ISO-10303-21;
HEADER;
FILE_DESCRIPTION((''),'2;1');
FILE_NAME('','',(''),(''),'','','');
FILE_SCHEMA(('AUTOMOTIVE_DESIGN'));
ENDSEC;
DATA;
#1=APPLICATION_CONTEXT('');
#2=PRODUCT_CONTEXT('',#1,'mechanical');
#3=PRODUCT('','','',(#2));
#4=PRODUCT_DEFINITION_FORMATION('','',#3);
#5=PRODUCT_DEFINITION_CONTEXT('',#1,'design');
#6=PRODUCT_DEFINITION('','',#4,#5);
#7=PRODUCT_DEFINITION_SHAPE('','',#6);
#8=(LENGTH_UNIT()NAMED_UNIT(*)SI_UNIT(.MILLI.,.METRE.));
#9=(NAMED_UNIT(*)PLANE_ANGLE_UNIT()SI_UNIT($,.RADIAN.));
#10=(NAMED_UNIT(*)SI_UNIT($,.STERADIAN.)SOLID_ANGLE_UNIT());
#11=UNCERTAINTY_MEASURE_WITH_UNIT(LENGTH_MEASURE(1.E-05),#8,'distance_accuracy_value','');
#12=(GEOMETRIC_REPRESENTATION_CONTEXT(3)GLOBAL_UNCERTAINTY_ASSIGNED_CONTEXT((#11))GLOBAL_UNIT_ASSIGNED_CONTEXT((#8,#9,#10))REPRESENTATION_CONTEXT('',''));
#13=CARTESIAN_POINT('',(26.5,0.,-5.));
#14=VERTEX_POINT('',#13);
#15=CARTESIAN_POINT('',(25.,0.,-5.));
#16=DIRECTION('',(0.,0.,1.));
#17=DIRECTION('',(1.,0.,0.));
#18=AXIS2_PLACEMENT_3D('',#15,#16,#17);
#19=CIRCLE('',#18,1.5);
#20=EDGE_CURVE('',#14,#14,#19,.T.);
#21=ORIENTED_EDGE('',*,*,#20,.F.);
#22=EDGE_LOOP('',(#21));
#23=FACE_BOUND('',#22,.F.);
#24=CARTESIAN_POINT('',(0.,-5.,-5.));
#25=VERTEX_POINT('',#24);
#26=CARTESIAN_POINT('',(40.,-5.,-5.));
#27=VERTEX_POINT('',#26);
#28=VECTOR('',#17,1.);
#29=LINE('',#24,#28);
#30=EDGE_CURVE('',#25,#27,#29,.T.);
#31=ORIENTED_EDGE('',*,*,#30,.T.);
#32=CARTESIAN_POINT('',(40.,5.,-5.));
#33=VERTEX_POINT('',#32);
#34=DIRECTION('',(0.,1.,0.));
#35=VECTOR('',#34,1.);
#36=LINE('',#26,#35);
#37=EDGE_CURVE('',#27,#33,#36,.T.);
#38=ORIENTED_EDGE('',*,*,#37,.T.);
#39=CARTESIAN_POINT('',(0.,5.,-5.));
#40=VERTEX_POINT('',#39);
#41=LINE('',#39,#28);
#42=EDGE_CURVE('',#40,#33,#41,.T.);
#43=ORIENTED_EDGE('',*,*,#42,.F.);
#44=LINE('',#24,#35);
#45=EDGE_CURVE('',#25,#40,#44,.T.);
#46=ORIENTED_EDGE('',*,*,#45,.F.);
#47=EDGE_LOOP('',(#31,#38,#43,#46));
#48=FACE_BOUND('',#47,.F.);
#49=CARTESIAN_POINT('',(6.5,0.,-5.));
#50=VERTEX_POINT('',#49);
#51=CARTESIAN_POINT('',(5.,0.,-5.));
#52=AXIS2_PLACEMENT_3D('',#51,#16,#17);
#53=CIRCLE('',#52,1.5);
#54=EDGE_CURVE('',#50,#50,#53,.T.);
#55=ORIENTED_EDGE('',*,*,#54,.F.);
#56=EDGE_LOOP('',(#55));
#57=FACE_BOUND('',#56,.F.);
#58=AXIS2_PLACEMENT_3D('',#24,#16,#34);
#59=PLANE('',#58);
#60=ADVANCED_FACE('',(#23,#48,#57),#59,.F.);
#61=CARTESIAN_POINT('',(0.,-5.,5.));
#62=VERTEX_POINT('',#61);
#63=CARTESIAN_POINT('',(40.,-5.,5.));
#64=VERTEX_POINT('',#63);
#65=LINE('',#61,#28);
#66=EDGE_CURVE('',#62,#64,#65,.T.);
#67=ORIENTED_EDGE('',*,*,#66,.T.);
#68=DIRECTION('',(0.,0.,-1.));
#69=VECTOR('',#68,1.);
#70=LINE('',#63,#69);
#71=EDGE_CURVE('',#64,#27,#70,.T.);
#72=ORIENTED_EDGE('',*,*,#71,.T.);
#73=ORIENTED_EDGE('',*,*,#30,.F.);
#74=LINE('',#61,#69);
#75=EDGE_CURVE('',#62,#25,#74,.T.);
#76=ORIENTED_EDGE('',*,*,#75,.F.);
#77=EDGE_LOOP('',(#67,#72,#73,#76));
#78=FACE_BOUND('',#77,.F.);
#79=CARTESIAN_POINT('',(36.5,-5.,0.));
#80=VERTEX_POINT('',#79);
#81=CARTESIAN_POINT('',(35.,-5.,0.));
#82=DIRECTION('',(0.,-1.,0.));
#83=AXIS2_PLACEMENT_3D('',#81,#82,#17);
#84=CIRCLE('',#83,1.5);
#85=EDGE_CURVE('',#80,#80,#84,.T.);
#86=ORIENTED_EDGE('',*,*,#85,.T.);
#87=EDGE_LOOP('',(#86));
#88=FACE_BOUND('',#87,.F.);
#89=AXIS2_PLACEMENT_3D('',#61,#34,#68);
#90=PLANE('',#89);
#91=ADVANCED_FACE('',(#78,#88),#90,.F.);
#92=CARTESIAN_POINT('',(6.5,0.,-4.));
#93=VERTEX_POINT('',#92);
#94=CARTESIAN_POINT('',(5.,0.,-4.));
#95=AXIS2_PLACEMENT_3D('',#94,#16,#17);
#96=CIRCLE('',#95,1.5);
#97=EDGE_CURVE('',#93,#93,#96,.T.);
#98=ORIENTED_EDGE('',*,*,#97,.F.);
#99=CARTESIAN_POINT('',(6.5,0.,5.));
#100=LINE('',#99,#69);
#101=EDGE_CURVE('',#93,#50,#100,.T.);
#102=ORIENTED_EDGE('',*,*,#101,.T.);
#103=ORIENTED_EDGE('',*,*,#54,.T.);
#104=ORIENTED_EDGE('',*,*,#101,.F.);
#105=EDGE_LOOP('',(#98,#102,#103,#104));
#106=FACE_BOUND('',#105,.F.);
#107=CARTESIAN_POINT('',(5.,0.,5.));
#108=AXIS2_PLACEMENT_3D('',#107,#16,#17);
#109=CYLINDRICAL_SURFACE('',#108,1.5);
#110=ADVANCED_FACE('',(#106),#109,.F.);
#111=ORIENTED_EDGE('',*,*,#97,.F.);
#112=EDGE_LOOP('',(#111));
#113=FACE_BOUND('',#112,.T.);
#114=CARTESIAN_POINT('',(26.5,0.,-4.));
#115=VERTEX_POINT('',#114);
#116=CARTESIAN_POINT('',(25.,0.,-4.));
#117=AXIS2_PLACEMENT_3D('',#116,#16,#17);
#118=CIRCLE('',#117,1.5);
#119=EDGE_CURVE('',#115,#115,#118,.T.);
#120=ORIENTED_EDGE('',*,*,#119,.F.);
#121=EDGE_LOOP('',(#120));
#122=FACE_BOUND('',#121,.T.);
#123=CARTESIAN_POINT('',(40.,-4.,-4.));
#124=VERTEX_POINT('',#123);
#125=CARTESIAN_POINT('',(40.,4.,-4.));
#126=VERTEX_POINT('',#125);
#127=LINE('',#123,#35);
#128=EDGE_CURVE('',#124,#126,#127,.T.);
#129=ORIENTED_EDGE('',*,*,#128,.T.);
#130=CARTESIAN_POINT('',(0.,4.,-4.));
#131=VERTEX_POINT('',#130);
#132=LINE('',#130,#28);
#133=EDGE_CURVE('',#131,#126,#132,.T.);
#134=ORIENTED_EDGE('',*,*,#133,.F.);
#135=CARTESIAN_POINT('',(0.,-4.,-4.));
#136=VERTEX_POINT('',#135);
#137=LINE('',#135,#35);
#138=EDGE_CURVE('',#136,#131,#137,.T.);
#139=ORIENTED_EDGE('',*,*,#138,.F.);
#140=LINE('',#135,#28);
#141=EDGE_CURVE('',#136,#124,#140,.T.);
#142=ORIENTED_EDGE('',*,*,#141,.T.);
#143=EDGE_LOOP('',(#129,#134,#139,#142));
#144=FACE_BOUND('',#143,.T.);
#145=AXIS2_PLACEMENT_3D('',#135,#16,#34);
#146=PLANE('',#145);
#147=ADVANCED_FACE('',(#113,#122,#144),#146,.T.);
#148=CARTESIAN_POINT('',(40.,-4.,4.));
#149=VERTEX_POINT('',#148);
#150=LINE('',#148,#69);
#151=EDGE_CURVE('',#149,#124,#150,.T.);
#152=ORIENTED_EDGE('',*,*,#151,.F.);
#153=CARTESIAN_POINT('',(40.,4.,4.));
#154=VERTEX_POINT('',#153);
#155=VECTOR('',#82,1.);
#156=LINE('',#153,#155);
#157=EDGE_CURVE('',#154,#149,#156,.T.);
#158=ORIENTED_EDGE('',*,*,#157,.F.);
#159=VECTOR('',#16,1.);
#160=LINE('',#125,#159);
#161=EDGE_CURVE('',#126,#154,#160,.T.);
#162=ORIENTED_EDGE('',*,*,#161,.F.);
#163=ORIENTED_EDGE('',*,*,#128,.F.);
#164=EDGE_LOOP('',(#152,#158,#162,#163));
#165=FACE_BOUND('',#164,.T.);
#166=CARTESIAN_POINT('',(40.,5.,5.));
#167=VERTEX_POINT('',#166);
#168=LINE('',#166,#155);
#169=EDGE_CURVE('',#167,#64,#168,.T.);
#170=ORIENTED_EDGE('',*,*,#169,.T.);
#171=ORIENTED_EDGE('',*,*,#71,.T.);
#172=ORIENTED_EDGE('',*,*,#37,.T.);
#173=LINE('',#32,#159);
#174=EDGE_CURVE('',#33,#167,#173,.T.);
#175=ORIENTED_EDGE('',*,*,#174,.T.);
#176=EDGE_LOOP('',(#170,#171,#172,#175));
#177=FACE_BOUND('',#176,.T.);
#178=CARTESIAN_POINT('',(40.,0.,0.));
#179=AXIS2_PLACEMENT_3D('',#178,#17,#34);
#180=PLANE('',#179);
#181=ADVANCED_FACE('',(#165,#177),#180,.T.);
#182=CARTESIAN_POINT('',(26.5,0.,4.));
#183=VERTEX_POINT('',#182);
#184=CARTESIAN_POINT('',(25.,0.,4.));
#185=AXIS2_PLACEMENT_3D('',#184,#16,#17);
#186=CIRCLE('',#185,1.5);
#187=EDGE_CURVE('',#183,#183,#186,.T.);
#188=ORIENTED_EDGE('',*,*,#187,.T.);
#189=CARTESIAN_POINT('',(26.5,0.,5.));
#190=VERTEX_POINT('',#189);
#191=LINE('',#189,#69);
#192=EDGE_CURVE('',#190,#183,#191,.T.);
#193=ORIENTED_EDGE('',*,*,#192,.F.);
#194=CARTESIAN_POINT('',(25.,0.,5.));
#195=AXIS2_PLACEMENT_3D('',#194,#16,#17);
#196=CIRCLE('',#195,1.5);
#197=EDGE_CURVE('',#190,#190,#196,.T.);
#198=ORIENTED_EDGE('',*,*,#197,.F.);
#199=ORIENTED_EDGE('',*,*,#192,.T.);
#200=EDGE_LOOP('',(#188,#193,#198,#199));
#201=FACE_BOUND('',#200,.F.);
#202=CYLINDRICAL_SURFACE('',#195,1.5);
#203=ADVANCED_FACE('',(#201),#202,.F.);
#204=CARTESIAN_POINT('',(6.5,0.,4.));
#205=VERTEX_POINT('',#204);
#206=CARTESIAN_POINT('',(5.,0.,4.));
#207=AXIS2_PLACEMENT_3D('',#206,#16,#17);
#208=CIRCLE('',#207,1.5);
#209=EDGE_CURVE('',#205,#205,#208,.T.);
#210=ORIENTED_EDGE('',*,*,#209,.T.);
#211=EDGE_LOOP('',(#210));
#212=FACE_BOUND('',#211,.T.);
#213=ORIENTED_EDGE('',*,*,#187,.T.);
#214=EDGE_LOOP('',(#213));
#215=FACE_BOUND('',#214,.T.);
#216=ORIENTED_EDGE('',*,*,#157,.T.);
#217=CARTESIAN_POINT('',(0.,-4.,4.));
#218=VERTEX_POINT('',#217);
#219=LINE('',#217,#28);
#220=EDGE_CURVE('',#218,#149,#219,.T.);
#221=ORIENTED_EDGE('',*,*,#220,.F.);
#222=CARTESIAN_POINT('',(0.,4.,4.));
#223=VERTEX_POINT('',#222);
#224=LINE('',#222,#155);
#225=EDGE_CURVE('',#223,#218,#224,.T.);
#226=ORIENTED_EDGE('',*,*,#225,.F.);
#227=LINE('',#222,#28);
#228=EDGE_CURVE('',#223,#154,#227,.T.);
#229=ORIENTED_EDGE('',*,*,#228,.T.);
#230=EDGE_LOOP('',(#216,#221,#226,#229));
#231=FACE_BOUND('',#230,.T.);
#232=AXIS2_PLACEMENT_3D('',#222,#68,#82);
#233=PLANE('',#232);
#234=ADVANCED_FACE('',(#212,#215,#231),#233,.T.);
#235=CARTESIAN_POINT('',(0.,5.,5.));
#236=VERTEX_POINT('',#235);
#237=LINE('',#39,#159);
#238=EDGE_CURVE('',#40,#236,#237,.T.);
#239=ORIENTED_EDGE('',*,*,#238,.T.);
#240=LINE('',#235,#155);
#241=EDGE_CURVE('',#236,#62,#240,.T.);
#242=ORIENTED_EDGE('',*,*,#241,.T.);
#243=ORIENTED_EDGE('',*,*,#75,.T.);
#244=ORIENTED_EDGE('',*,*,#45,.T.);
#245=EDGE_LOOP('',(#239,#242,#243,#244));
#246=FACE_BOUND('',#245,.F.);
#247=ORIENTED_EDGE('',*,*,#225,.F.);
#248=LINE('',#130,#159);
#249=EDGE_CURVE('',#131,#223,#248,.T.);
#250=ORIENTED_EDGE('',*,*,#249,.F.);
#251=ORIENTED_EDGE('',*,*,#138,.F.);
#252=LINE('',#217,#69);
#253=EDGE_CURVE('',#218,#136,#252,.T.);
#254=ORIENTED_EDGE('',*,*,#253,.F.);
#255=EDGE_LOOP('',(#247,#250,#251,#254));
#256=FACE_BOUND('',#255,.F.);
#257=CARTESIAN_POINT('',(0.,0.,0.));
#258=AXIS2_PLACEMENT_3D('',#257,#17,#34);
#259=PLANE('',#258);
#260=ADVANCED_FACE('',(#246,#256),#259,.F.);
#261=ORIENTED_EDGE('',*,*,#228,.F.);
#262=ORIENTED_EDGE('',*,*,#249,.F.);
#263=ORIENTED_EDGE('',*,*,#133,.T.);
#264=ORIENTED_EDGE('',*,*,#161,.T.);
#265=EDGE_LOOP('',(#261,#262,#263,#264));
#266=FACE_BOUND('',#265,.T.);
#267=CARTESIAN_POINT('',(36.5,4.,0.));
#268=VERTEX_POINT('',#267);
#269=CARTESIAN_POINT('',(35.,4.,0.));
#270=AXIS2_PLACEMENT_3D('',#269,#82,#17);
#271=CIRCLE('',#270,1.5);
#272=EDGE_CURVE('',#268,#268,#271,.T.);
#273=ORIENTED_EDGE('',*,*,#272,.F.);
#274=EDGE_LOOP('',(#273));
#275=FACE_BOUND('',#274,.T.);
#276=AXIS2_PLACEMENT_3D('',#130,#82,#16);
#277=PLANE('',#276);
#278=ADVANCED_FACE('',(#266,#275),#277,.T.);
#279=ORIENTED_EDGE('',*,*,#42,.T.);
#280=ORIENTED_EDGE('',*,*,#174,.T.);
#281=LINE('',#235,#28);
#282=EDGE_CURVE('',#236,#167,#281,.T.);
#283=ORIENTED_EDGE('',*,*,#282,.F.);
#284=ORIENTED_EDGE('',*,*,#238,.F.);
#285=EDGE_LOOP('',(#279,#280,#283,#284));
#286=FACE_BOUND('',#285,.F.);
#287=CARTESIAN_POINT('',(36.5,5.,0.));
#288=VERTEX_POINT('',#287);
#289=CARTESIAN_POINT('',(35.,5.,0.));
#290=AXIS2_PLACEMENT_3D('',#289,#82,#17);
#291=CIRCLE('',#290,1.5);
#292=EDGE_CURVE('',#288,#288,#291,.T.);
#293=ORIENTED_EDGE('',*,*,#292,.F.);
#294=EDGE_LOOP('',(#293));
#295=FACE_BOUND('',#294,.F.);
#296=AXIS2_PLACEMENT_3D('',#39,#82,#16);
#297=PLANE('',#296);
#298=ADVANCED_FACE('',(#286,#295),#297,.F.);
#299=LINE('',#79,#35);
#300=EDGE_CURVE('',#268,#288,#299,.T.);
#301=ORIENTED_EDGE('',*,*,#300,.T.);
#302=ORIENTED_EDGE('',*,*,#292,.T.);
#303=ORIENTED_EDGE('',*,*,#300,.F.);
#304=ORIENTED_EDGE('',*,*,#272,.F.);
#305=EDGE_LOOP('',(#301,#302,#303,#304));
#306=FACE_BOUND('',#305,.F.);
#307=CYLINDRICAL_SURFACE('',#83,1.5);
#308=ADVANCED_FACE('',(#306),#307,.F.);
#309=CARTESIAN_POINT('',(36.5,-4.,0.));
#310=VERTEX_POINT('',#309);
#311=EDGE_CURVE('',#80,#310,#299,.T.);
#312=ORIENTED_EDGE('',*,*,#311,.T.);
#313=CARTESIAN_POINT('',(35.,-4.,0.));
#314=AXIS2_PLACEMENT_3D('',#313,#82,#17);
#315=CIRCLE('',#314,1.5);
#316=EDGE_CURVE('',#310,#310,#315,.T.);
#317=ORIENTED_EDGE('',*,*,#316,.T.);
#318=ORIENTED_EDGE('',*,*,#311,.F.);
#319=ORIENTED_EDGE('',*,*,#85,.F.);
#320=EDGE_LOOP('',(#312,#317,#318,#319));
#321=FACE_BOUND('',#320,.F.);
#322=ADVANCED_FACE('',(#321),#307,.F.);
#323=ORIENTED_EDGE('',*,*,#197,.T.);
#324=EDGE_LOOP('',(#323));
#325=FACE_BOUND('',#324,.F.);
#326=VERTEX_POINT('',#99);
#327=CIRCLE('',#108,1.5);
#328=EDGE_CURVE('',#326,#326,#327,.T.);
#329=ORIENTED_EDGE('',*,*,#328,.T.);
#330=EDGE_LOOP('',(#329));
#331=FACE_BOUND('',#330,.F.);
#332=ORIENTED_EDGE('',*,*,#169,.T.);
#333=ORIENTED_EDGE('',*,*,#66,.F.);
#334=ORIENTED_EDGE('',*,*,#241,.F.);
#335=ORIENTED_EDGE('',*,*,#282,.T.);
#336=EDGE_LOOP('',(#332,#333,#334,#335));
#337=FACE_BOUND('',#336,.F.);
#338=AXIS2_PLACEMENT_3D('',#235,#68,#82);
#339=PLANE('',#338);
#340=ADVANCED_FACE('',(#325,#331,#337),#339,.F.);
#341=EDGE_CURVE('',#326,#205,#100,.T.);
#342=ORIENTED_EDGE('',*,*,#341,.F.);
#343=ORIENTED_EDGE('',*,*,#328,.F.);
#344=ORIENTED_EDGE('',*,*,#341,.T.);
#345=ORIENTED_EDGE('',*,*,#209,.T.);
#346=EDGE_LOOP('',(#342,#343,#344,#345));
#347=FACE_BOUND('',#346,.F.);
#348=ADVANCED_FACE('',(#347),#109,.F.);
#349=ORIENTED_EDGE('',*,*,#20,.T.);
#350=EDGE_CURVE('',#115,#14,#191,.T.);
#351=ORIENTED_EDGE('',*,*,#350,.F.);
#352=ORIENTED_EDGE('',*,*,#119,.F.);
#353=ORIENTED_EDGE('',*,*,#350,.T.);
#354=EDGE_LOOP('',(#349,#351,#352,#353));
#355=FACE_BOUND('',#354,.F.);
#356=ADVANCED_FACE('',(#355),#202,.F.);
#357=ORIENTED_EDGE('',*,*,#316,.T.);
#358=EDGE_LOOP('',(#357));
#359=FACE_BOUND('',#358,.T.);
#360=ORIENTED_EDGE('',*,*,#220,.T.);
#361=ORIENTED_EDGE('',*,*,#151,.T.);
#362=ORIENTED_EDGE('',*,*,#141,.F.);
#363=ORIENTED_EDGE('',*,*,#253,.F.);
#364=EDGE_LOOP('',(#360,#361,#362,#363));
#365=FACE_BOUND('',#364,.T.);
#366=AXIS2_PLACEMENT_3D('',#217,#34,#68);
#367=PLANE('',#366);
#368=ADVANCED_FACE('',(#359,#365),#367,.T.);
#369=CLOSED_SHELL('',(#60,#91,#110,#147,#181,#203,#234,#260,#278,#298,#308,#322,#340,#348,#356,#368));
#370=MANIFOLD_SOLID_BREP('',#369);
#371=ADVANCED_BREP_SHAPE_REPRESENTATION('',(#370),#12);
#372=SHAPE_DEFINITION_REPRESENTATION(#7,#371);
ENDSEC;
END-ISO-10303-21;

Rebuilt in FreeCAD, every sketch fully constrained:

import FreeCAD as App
import Part
import Sketcher

V = App.Vector
Q = App.Units.Quantity

doc = App.newDocument("Part")
body = doc.addObject("PartDesign::Body", "Body")

# Sketch on YZ plane
sketch1 = body.newObject("Sketcher::SketchObject", "Sketch")
sketch1.AttachmentSupport = (doc.getObject("YZ_Plane"), [""])
sketch1.MapMode = "FlatFace"
sketch1.addGeometry([
    Part.LineSegment(V(5, -5, 0), V(5, 5, 0)),  # 0
    Part.LineSegment(V(5, 5, 0), V(-5, 5, 0)),  # 1
    Part.LineSegment(V(-5, 5, 0), V(-5, -5, 0)),  # 2
    Part.LineSegment(V(-5, -5, 0), V(5, -5, 0)),  # 3
    Part.LineSegment(V(-4, 4, 0), V(4, 4, 0)),  # 4
    Part.LineSegment(V(4, 4, 0), V(4, -4, 0)),  # 5
    Part.LineSegment(V(4, -4, 0), V(-4, -4, 0)),  # 6
    Part.LineSegment(V(-4, -4, 0), V(-4, 4, 0)),  # 7
], False)
sketch1.addConstraint([
    Sketcher.Constraint("Coincident", 0, 2, 1, 1),
    Sketcher.Constraint("Coincident", 1, 2, 2, 1),
    Sketcher.Constraint("Coincident", 2, 2, 3, 1),
    Sketcher.Constraint("Coincident", 3, 2, 0, 1),
    Sketcher.Constraint("Coincident", 4, 2, 5, 1),
    Sketcher.Constraint("Coincident", 5, 2, 6, 1),
    Sketcher.Constraint("Coincident", 6, 2, 7, 1),
    Sketcher.Constraint("Coincident", 7, 2, 4, 1),
    Sketcher.Constraint("Vertical", 0),
    Sketcher.Constraint("Horizontal", 1),
    Sketcher.Constraint("Vertical", 2),
    Sketcher.Constraint("Horizontal", 3),
    Sketcher.Constraint("Horizontal", 4),
    Sketcher.Constraint("Vertical", 5),
    Sketcher.Constraint("Horizontal", 6),
    Sketcher.Constraint("Vertical", 7),
    Sketcher.Constraint("Symmetric", 0, 2, 2, 2, -1, 1),
    Sketcher.Constraint("Symmetric", 4, 2, 6, 2, -1, 1),
    Sketcher.Constraint("Equal", 3, 0),
    Sketcher.Constraint("Equal", 6, 5),
    Sketcher.Constraint("DistanceX", 1, 2, 1, 1, Q("10 mm")),
    Sketcher.Constraint("DistanceX", 4, 2, 0, 2, Q("1 mm")),
])
pad1 = body.newObject("PartDesign::Pad", "Pad")
pad1.Profile = sketch1
pad1.Length = 40

# Sketch on XY plane
sketch2 = body.newObject("Sketcher::SketchObject", "Sketch001")
sketch2.AttachmentSupport = (doc.getObject("XY_Plane"), [""])
sketch2.MapMode = "FlatFace"
sketch2.AttachmentOffset = App.Placement(V(0, 0, 5), App.Rotation())
sketch2.addGeometry([
    Part.Circle(V(5, 0, 0), V(0, 0, 1), 1.5),
    Part.Circle(V(25, 0, 0), V(0, 0, 1), 1.5),
], False)
sketch2.addConstraint([
    Sketcher.Constraint("Equal", 0, 1),
    Sketcher.Constraint("PointOnObject", 0, 3, -1),
    Sketcher.Constraint("PointOnObject", 1, 3, -1),
    Sketcher.Constraint("Diameter", 0, Q("3 mm")),
    Sketcher.Constraint("DistanceX", -1, 1, 0, 3, Q("5 mm")),
    Sketcher.Constraint("DistanceX", -1, 1, 1, 3, Q("25 mm")),
])
pocket1 = body.newObject("PartDesign::Pocket", "Pocket")
pocket1.Profile = sketch2
pocket1.Length = 30

# Sketch on XZ plane
sketch3 = body.newObject("Sketcher::SketchObject", "Sketch002")
sketch3.AttachmentSupport = (doc.getObject("XZ_Plane"), [""])
sketch3.MapMode = "FlatFace"
sketch3.AttachmentOffset = App.Placement(V(0, 0, 5), App.Rotation())
sketch3.addGeometry(Part.Circle(V(35, 0, 0), V(0, 0, 1), 1.5), False)
sketch3.addConstraint([
    Sketcher.Constraint("PointOnObject", 0, 3, -1),
    Sketcher.Constraint("Diameter", 0, Q("3 mm")),
    Sketcher.Constraint("DistanceX", -1, 1, 0, 3, Q("35 mm")),
])
pocket2 = body.newObject("PartDesign::Pocket", "Pocket001")
pocket2.Profile = sketch3
pocket2.Length = 30

doc.recompute()
